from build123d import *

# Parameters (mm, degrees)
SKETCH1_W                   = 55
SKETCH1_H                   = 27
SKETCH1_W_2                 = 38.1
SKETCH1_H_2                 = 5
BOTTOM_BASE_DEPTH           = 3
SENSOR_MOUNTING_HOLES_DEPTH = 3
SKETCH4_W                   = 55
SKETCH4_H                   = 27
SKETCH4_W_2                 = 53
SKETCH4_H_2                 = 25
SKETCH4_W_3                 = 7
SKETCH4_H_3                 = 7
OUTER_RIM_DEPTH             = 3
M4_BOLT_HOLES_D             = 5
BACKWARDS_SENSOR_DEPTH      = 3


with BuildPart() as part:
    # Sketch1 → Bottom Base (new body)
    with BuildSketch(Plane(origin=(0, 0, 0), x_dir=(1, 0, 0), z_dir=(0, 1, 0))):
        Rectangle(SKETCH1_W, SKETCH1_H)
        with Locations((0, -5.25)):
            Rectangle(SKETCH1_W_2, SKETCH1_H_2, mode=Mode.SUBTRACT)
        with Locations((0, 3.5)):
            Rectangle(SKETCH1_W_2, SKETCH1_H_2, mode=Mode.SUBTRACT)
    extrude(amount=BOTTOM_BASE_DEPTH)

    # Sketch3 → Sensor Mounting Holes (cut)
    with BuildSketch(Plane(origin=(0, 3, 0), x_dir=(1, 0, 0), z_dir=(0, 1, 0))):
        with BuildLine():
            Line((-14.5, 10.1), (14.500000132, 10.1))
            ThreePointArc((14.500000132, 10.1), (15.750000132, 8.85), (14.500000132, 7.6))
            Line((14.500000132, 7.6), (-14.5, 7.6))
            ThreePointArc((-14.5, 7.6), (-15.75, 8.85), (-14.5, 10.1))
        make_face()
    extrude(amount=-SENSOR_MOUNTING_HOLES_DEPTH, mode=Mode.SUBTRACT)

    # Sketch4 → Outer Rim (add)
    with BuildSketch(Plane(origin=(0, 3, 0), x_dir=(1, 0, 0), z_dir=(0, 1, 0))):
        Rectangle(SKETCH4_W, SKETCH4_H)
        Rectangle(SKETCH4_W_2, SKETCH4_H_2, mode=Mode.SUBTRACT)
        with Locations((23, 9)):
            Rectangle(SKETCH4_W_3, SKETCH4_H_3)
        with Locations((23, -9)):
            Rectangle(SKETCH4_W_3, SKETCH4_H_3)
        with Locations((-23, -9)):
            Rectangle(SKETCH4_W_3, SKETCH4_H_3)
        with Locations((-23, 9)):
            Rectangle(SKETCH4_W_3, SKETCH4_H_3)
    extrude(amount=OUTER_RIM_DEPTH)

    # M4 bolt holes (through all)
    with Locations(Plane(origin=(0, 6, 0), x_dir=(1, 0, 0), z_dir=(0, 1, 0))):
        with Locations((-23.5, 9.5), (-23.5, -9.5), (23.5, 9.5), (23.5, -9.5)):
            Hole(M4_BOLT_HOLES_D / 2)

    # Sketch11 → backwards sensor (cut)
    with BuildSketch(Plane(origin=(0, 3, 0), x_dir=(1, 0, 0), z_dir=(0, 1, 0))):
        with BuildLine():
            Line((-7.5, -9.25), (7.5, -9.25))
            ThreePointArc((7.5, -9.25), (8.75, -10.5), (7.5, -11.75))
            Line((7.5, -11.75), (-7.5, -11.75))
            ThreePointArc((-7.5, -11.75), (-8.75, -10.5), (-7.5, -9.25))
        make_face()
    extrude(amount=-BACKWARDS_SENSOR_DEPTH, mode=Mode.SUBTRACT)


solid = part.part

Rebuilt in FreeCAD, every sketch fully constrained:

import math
import FreeCAD as App
import Part
import Sketcher
from FreeCAD import Vector


def add_polygon(sketch, points):
    """Adds a closed chain of lines whose ends are joined by coincident constraints."""
    first, n = sketch.GeometryCount, len(points)
    for a, b in zip(points, points[1:] + points[:1]):
        sketch.addGeometry(Part.LineSegment(App.Vector(*a, 0), App.Vector(*b, 0)), False)
    for i in range(n):
        sketch.addConstraint(Sketcher.Constraint("Coincident", first + i, 2, first + (i + 1) % n, 1))

doc = App.newDocument("Part")
params = doc.addObject("Spreadsheet::Sheet", "Params")
for row, (alias, value) in enumerate([
    ("sketch1_width", "55 mm"),
    ("sketch1_height", "27 mm"),
    ("sketch1_height2", "5 mm"),
    ("sketch1_width2", "38.1 mm"),
    ("pad1_length", "3 mm"),
    ("sketch2_width", "29 mm"),
    ("sketch2_radius", "1.25 mm"),
    ("pocket1_length", "3 mm"),
    ("sketch3_width", "55 mm"),
    ("sketch3_width2", "39 mm"),
    ("sketch3_width3", "7 mm"),
    ("sketch3_height", "27 mm"),
    ("sketch3_height2", "11 mm"),
    ("pad2_length", "3 mm"),
    ("sketch4_diameter", "5 mm"),
    ("hole_diameter", "5 mm"),
    ("sketch5_width", "15 mm"),
    ("sketch5_radius", "1.25 mm"),
    ("pocket2_length", "3 mm"),
], start=1):
    params.set(f"A{row}", alias)
    params.set(f"B{row}", "=" + value)
    params.setAlias(f"B{row}", alias)

body = doc.addObject("PartDesign::Body", "Body")

# Sketch on XZ plane
sketch1 = body.newObject("Sketcher::SketchObject", "Sketch")
sketch1.AttachmentSupport = (doc.getObject("XZ_Plane"), [""])
sketch1.MapMode = "FlatFace"
add_polygon(sketch1, [(-28, -14), (-28, 14), (28, 14), (28, -14)])  # lines 0-3
add_polygon(sketch1, [(19, 8), (-19, 8), (-19, 3), (19, 3)])  # lines 4-7
add_polygon(sketch1, [(19, -1), (-19, -1), (-19, -6), (19, -6)])  # lines 8-11
sketch1.addConstraint(Sketcher.Constraint("Vertical", 0))
sketch1.addConstraint(Sketcher.Constraint("Horizontal", 1))
sketch1.addConstraint(Sketcher.Constraint("Vertical", 2))
sketch1.addConstraint(Sketcher.Constraint("Horizontal", 3))
sketch1.addConstraint(Sketcher.Constraint("Horizontal", 4))
sketch1.addConstraint(Sketcher.Constraint("Vertical", 5))
sketch1.addConstraint(Sketcher.Constraint("Horizontal", 6))
sketch1.addConstraint(Sketcher.Constraint("Vertical", 7))
sketch1.addConstraint(Sketcher.Constraint("Horizontal", 8))
sketch1.addConstraint(Sketcher.Constraint("Vertical", 9))
sketch1.addConstraint(Sketcher.Constraint("Horizontal", 10))
sketch1.addConstraint(Sketcher.Constraint("Vertical", 11))
sketch1.addConstraint(Sketcher.Constraint("Symmetric", 0, 2, 2, 2, -1, 1))
sketch1.addConstraint(Sketcher.Constraint("Vertical", 5, 2, 8, 2))
sketch1.addConstraint(Sketcher.Constraint("Vertical", 7, 2, 10, 2))
sketch1.addConstraint(Sketcher.Constraint("Equal", 7, 9))
sketch1.addConstraint(Sketcher.Constraint("DistanceX", 1, 1, 1, 2, 55.0))
sketch1.addConstraint(Sketcher.Constraint("DistanceY", 0, 1, 0, 2, 27.0))
sketch1.addConstraint(Sketcher.Constraint("DistanceY", 5, 2, 5, 1, 5.0))
sketch1.addConstraint(Sketcher.Constraint("DistanceX", 4, 2, 4, 1, 38.1))
sketch1.addConstraint(Sketcher.Constraint("DistanceY", 8, 2, -1, 1, 1.0))
sketch1.addConstraint(Sketcher.Constraint("DistanceX", 4, 2, -1, 1, 19.05))
sketch1.addConstraint(Sketcher.Constraint("DistanceY", -1, 1, 4, 2, 7.75))
sketch1.setExpression("Constraints[28]", "Params.sketch1_width")
sketch1.setExpression("Constraints[29]", "Params.sketch1_height")
sketch1.setExpression("Constraints[30]", "Params.sketch1_height2")
sketch1.setExpression("Constraints[31]", "Params.sketch1_width2")
pad1 = body.newObject("PartDesign::Pad", "Pad")
pad1.Profile = sketch1
pad1.setExpression("Length", "Params.pad1_length")
pad1.Reversed = True

# Sketch on XZ plane
sketch2 = body.newObject("Sketcher::SketchObject", "Sketch001")
sketch2.AttachmentSupport = (doc.getObject("XZ_Plane"), [""])
sketch2.MapMode = "FlatFace"
sketch2.AttachmentOffset = App.Placement(Vector(0, 0, -3), App.Rotation())
sketch2.addGeometry(Part.LineSegment(Vector(14.5, -10.1, 0), Vector(-14.5, -10.1, 0)), False)
sketch2.addGeometry(Part.ArcOfCircle(Part.Circle(Vector(-14.5, -8.8, 0), Vector(0, 0, 1), 1.2), math.radians(90), math.radians(270)), False)
sketch2.addGeometry(Part.LineSegment(Vector(-14.5, -7.6, 0), Vector(14.5, -7.6, 0)), False)
sketch2.addGeometry(Part.ArcOfCircle(Part.Circle(Vector(14.5, -8.8, 0), Vector(0, 0, 1), 1.2), math.radians(-90), math.radians(90)), False)
sketch2.addConstraint(Sketcher.Constraint("Tangent", 0, 2, 1, 2))
sketch2.addConstraint(Sketcher.Constraint("Tangent", 1, 1, 2, 1))
sketch2.addConstraint(Sketcher.Constraint("Tangent", 2, 2, 3, 2))
sketch2.addConstraint(Sketcher.Constraint("Tangent", 3, 1, 0, 1))
sketch2.addConstraint(Sketcher.Constraint("Horizontal", 0))
sketch2.addConstraint(Sketcher.Constraint("Horizontal", 2))
sketch2.addConstraint(Sketcher.Constraint("DistanceX", 0, 2, 0, 1, 29.0))
sketch2.addConstraint(Sketcher.Constraint("Radius", 1, 1.25))
sketch2.addConstraint(Sketcher.Constraint("DistanceX", 1, 3, -1, 1, 14.5))
sketch2.addConstraint(Sketcher.Constraint("DistanceY", 0, 2, -1, 1, 10.1))
sketch2.setExpression("Constraints[6]", "Params.sketch2_width")
sketch2.setExpression("Constraints[7]", "Params.sketch2_radius")
pocket1 = body.newObject("PartDesign::Pocket", "Pocket")
pocket1.Profile = sketch2
pocket1.setExpression("Length", "Params.pocket1_length")
pocket1.Reversed = True

# Sketch on XZ plane
sketch3 = body.newObject("Sketcher::SketchObject", "Sketch002")
sketch3.AttachmentSupport = (doc.getObject("XZ_Plane"), [""])
sketch3.MapMode = "FlatFace"
sketch3.AttachmentOffset = App.Placement(Vector(0, 0, -3), App.Rotation())
add_polygon(sketch3, [(-28, -14), (-28, 14), (28, 14), (28, -14)])  # lines 0-3
add_polygon(sketch3, [(20, 12), (-20, 12), (-20, 6), (-26, 6), (-26, -6), (-20, -6), (-20, -12), (20, -12), (20, -6), (26, -6), (26, 6), (20, 6)])  # lines 4-15
sketch3.addConstraint(Sketcher.Constraint("Vertical", 0))
sketch3.addConstraint(Sketcher.Constraint("Horizontal", 1))
sketch3.addConstraint(Sketcher.Constraint("Vertical", 2))
sketch3.addConstraint(Sketcher.Constraint("Horizontal", 3))
sketch3.addConstraint(Sketcher.Constraint("Horizontal", 4))
sketch3.addConstraint(Sketcher.Constraint("Vertical", 5))
sketch3.addConstraint(Sketcher.Constraint("Horizontal", 6))
sketch3.addConstraint(Sketcher.Constraint("Vertical", 7))
sketch3.addConstraint(Sketcher.Constraint("Horizontal", 8))
sketch3.addConstraint(Sketcher.Constraint("Vertical", 9))
sketch3.addConstraint(Sketcher.Constraint("Horizontal", 10))
sketch3.addConstraint(Sketcher.Constraint("Vertical", 11))
sketch3.addConstraint(Sketcher.Constraint("Horizontal", 12))
sketch3.addConstraint(Sketcher.Constraint("Vertical", 13))
sketch3.addConstraint(Sketcher.Constraint("Horizontal", 14))
sketch3.addConstraint(Sketcher.Constraint("Vertical", 15))
sketch3.addConstraint(Sketcher.Constraint("Symmetric", 0, 2, 2, 2, -1, 1))
sketch3.addConstraint(Sketcher.Constraint("Symmetric", 4, 2, 10, 2, -1, 1))
sketch3.addConstraint(Sketcher.Constraint("Symmetric", 6, 2, 12, 2, -1, 1))
sketch3.addConstraint(Sketcher.Constraint("Symmetric", 8, 2, 14, 2, -1, 1))
sketch3.addConstraint(Sketcher.Constraint("Symmetric", 8, 2, 11, 2, -2))
sketch3.addConstraint(Sketcher.Constraint("Equal", 14, 5))
sketch3.addConstraint(Sketcher.Constraint("DistanceX", 1, 1, 1, 2, 55.0))
sketch3.addConstraint(Sketcher.Constraint("DistanceX", 4, 2, 4, 1, 39.0))
sketch3.addConstraint(Sketcher.Constraint("DistanceX", 6, 2, 6, 1, 7.0))
sketch3.addConstraint(Sketcher.Constraint("DistanceY", 0, 1, 0, 2, 27.0))
sketch3.addConstraint(Sketcher.Constraint("DistanceY", 7, 2, 7, 1, 11.0))
sketch3.setExpression("Constraints[38]", "Params.sketch3_width")
sketch3.setExpression("Constraints[39]", "Params.sketch3_width2")
sketch3.setExpression("Constraints[40]", "Params.sketch3_width3")
sketch3.setExpression("Constraints[41]", "Params.sketch3_height")
sketch3.setExpression("Constraints[42]", "Params.sketch3_height2")
pad2 = body.newObject("PartDesign::Pad", "Pad001")
pad2.Profile = sketch3
pad2.setExpression("Length", "Params.pad2_length")
pad2.Reversed = True

# Sketch on XZ plane
sketch4 = body.newObject("Sketcher::SketchObject", "Sketch003")
sketch4.AttachmentSupport = (doc.getObject("XZ_Plane"), [""])
sketch4.MapMode = "FlatFace"
sketch4.AttachmentOffset = App.Placement(Vector(0, 0, -6), App.Rotation())
sketch4.addGeometry(Part.Circle(Vector(-23.5, -9.5, 0), Vector(0, 0, 1), 2.5), False)
sketch4.addGeometry(Part.Circle(Vector(-23.5, 9.5, 0), Vector(0, 0, 1), 2.5), False)
sketch4.addGeometry(Part.Circle(Vector(23.5, -9.5, 0), Vector(0, 0, 1), 2.5), False)
sketch4.addGeometry(Part.Circle(Vector(23.5, 9.5, 0), Vector(0, 0, 1), 2.5), False)
sketch4.addConstraint(Sketcher.Constraint("Equal", 0, 1))
sketch4.addConstraint(Sketcher.Constraint("Equal", 1, 2))
sketch4.addConstraint(Sketcher.Constraint("Equal", 2, 3))
sketch4.addConstraint(Sketcher.Constraint("Symmetric", 1, 3, 2, 3, -1, 1))
sketch4.addConstraint(Sketcher.Constraint("Symmetric", 0, 3, 3, 3, -1, 1))
sketch4.addConstraint(Sketcher.Constraint("Symmetric", 0, 3, 2, 3, -2))
sketch4.addConstraint(Sketcher.Constraint("Diameter", 0, 5.0))
sketch4.addConstraint(Sketcher.Constraint("DistanceY", 0, 3, 1, 3, 19.0))
sketch4.addConstraint(Sketcher.Constraint("DistanceX", 0, 3, 2, 3, 47.0))
sketch4.setExpression("Constraints[6]", "Params.sketch4_diameter")
doc.recompute()
hole = body.newObject("PartDesign::Hole", "Hole")
hole.Profile = sketch4
hole.ThreadType = "None"
hole.setExpression("Diameter", "Params.hole_diameter")
hole.DepthType = "ThroughAll"
hole.Reversed = True

# Sketch on XZ plane
sketch5 = body.newObject("Sketcher::SketchObject", "Sketch004")
sketch5.AttachmentSupport = (doc.getObject("XZ_Plane"), [""])
sketch5.MapMode = "FlatFace"
sketch5.AttachmentOffset = App.Placement(Vector(0, 0, -3), App.Rotation())
sketch5.addGeometry(Part.LineSegment(Vector(7.5, 9.2, 0), Vector(-7.5, 9.2, 0)), False)
sketch5.addGeometry(Part.ArcOfCircle(Part.Circle(Vector(-7.5, 10.5, 0), Vector(0, 0, 1), 1.2), math.radians(90), math.radians(270)), False)
sketch5.addGeometry(Part.LineSegment(Vector(-7.5, 11.8, 0), Vector(7.5, 11.8, 0)), False)
sketch5.addGeometry(Part.ArcOfCircle(Part.Circle(Vector(7.5, 10.5, 0), Vector(0, 0, 1), 1.2), math.radians(-90), math.radians(90)), False)
sketch5.addConstraint(Sketcher.Constraint("Tangent", 0, 2, 1, 2))
sketch5.addConstraint(Sketcher.Constraint("Tangent", 1, 1, 2, 1))
sketch5.addConstraint(Sketcher.Constraint("Tangent", 2, 2, 3, 2))
sketch5.addConstraint(Sketcher.Constraint("Tangent", 3, 1, 0, 1))
sketch5.addConstraint(Sketcher.Constraint("Horizontal", 0))
sketch5.addConstraint(Sketcher.Constraint("Horizontal", 2))
sketch5.addConstraint(Sketcher.Constraint("DistanceX", 0, 2, 0, 1, 15.0))
sketch5.addConstraint(Sketcher.Constraint("Radius", 1, 1.25))
sketch5.addConstraint(Sketcher.Constraint("DistanceX", 1, 3, -1, 1, 7.5))
sketch5.addConstraint(Sketcher.Constraint("DistanceY", -1, 1, 1, 3, 10.5))
sketch5.setExpression("Constraints[6]", "Params.sketch5_width")
sketch5.setExpression("Constraints[7]", "Params.sketch5_radius")
pocket2 = body.newObject("PartDesign::Pocket", "Pocket001")
pocket2.Profile = sketch5
pocket2.setExpression("Length", "Params.pocket2_length")
pocket2.Reversed = True

doc.recompute()
